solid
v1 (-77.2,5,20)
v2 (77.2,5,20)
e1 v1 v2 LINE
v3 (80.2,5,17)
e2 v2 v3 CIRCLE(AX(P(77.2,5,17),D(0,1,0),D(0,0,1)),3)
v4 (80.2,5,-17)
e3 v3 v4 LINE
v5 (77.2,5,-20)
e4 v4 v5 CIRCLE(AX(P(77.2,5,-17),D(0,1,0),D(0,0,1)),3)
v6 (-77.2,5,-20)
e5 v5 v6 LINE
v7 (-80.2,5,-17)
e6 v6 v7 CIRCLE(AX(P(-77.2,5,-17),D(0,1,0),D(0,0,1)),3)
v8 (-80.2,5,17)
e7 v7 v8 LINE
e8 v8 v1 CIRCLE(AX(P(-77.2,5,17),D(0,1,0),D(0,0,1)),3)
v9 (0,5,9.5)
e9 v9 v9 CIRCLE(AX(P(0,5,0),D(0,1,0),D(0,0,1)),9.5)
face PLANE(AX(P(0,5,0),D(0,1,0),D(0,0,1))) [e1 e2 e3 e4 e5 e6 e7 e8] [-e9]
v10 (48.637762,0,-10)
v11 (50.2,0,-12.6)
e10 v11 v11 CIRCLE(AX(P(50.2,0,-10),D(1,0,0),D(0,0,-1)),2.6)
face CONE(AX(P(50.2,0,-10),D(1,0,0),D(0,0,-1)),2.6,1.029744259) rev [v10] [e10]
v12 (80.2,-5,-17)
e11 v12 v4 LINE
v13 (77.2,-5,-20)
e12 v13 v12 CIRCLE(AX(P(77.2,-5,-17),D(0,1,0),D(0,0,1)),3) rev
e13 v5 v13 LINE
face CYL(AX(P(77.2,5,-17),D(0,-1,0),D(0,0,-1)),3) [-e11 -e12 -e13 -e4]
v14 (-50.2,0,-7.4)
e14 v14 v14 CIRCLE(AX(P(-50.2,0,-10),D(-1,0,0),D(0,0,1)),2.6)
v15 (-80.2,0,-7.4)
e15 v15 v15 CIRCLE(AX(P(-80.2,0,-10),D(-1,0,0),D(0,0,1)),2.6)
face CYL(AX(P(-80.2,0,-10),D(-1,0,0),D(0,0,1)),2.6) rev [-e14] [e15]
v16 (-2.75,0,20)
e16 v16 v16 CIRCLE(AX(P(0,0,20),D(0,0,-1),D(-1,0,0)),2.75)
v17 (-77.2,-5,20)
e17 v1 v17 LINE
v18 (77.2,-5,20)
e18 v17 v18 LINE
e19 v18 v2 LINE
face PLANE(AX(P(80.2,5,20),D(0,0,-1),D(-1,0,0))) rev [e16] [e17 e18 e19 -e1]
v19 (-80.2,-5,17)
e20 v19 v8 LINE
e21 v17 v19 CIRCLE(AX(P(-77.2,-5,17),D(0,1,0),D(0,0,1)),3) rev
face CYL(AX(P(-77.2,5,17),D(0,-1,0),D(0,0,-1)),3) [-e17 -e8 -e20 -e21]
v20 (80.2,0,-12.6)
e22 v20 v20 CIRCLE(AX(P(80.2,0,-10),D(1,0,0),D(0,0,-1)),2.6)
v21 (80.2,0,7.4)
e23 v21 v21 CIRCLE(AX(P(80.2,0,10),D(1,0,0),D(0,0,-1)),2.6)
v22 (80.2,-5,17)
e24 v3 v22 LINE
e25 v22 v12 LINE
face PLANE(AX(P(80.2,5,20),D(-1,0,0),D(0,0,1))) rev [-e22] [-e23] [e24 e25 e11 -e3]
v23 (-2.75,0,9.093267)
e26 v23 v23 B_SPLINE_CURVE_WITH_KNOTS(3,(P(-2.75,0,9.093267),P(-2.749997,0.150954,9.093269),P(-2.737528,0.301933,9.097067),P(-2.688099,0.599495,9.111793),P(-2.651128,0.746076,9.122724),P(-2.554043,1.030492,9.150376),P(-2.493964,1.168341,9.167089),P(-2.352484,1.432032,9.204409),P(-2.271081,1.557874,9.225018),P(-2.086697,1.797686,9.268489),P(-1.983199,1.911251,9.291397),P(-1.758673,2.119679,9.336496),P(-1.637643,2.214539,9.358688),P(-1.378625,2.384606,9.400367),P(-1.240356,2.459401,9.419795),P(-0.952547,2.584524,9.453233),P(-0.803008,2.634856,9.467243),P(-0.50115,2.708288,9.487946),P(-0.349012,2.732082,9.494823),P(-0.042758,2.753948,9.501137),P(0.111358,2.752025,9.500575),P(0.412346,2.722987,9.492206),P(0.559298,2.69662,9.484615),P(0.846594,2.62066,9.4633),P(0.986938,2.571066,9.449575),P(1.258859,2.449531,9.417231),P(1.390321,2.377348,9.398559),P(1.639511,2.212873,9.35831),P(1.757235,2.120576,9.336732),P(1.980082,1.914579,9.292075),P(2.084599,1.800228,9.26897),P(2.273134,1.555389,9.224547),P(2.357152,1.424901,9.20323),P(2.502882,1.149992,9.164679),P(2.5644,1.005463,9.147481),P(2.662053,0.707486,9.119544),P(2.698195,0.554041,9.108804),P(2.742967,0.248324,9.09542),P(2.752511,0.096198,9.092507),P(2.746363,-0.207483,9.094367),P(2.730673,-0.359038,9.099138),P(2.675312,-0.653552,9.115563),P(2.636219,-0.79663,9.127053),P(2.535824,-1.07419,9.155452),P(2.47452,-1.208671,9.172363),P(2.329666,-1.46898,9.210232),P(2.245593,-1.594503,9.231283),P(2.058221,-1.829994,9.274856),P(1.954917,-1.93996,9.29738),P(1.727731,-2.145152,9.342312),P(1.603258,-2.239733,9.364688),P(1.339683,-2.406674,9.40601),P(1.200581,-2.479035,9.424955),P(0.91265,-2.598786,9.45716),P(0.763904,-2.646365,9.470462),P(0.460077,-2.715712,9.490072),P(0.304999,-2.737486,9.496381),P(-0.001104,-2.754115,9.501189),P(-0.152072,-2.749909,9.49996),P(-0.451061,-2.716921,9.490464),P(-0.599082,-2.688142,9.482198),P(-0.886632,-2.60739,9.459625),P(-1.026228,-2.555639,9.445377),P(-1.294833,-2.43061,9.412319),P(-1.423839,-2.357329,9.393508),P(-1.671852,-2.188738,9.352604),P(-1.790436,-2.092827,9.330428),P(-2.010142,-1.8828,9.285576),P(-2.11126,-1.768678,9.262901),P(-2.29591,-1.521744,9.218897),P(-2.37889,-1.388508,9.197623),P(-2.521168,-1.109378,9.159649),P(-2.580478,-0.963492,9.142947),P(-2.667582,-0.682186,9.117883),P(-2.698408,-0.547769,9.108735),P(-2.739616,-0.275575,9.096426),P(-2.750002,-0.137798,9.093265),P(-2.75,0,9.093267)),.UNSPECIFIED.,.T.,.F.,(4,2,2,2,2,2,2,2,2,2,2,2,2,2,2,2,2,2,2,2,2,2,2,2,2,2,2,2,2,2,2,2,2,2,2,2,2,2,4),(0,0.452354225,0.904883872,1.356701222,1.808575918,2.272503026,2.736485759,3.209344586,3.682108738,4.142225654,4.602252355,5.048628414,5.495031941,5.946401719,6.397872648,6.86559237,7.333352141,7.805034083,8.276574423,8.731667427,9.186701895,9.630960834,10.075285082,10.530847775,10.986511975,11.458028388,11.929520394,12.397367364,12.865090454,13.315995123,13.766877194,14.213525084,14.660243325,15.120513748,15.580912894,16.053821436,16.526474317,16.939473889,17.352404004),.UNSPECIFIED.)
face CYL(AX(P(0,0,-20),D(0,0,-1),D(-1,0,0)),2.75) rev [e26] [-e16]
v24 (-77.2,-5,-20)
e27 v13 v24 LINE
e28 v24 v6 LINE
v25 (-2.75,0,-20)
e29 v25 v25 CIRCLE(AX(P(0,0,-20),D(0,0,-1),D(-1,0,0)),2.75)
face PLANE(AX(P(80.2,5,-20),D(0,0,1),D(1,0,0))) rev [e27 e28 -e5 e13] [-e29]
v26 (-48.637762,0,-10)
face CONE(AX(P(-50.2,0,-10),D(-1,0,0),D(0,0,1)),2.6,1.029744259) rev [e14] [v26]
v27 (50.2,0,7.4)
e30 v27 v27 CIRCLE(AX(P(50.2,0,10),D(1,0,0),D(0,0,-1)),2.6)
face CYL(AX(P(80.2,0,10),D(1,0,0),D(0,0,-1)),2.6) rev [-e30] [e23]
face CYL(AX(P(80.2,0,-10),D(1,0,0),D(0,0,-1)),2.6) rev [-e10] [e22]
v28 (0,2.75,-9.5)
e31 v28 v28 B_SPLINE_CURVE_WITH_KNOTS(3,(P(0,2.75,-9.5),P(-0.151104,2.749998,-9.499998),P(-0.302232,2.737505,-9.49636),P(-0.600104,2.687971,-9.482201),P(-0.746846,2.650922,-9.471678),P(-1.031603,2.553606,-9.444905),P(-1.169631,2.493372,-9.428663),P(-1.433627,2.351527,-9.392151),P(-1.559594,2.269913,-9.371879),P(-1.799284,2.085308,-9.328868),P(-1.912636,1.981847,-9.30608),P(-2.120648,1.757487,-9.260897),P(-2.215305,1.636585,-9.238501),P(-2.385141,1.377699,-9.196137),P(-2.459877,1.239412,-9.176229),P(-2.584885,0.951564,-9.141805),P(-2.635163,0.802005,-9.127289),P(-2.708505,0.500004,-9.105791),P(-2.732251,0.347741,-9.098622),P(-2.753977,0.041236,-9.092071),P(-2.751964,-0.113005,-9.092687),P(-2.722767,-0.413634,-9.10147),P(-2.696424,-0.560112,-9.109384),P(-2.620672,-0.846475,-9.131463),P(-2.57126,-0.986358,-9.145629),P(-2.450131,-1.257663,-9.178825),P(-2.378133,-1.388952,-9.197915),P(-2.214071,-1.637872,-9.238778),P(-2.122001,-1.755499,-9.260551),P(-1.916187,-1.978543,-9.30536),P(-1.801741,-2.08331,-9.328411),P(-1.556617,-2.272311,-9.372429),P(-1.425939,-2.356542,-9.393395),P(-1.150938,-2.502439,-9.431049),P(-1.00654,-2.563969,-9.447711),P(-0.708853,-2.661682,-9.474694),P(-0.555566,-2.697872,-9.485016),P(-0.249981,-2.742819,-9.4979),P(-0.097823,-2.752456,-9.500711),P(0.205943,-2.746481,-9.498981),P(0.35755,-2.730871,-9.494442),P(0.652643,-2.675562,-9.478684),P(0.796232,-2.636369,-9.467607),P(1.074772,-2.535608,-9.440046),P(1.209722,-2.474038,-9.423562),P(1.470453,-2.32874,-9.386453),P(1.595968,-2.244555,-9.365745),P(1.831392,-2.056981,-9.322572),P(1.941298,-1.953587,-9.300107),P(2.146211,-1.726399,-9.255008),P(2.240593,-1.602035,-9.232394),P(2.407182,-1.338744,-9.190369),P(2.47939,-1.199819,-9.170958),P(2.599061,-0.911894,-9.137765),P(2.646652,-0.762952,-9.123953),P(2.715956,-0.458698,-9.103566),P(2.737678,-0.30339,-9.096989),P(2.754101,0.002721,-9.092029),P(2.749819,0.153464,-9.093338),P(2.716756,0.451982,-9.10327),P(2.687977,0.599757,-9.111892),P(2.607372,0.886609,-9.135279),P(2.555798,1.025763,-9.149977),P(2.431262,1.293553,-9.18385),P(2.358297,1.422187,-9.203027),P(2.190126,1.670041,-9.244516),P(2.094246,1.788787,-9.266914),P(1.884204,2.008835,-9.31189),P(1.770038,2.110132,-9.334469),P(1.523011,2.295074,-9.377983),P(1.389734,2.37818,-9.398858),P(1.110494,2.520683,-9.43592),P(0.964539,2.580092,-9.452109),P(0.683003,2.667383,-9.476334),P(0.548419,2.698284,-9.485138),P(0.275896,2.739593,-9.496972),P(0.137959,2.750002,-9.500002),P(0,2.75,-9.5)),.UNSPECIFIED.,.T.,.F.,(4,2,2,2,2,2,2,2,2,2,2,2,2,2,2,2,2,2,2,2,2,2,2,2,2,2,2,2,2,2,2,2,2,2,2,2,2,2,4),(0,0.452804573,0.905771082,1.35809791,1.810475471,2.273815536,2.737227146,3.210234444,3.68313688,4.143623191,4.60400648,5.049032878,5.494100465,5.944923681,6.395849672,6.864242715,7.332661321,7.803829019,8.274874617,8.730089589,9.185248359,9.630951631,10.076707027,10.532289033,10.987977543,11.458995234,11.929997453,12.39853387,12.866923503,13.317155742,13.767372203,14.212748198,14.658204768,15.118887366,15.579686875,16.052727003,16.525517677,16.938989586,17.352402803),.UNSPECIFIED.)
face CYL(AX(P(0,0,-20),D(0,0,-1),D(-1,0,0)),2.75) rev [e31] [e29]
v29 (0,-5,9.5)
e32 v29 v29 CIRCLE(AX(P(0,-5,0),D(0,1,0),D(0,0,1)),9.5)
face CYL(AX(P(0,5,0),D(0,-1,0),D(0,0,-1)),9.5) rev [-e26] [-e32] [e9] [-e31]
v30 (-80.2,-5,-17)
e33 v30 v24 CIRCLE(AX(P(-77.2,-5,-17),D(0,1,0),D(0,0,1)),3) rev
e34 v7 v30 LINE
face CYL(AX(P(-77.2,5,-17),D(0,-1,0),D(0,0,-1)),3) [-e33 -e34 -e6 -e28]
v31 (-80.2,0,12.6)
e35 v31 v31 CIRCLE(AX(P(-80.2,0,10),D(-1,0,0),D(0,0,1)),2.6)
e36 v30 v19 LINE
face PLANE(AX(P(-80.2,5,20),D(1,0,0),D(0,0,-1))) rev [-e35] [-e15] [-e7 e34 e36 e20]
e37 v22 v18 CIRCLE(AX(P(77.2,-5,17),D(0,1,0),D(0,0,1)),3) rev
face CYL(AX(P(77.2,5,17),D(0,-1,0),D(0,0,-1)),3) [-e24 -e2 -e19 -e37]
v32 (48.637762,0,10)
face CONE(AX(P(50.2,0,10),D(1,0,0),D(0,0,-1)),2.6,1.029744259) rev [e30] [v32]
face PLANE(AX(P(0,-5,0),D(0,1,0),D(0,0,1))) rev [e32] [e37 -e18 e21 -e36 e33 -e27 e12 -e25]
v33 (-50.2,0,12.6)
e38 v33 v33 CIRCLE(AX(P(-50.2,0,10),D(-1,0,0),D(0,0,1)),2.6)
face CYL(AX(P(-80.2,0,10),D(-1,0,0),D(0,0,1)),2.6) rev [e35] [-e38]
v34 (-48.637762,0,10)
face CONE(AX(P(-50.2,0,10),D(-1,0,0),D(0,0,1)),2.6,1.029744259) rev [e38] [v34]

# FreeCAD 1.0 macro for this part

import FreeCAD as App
import Part
import Sketcher
from FreeCAD import Vector
Q = App.Units.Quantity


def edges_at(feature, points):
    """Names of the edges that pass closest to the given points."""
    edges = feature.Shape.Edges
    near = lambda p: min(range(len(edges)), key=lambda i: edges[i].distToShape(Part.Vertex(*p))[0])
    return sorted({f"Edge{near(p) + 1}" for p in points})

doc = App.newDocument("Part")
body = doc.addObject("PartDesign::Body", "Body")

# Sketch on XZ plane
sketch1 = doc.addObject("Sketcher::SketchObject", "Sketch")
body.addObject(sketch1)
sketch1.AttachmentSupport = (doc.XZ_Plane, [""])
sketch1.MapMode = "FlatFace"
sketch1.addGeometry(Part.LineSegment(Vector(-80, -20, 0), Vector(-80, 20, 0)), False)
sketch1.addGeometry(Part.LineSegment(Vector(-80, 20, 0), Vector(80, 20, 0)), False)
sketch1.addGeometry(Part.LineSegment(Vector(80, 20, 0), Vector(80, -20, 0)), False)
sketch1.addGeometry(Part.LineSegment(Vector(80, -20, 0), Vector(-80, -20, 0)), False)
sketch1.addGeometry(Part.Circle(Vector(0, 0, 0), Vector(0, 0, 1), 10), False)
sketch1.addConstraint(Sketcher.Constraint("Coincident", 0, 2, 1, 1))
sketch1.addConstraint(Sketcher.Constraint("Coincident", 1, 2, 2, 1))
sketch1.addConstraint(Sketcher.Constraint("Coincident", 2, 2, 3, 1))
sketch1.addConstraint(Sketcher.Constraint("Coincident", 3, 2, 0, 1))
sketch1.addConstraint(Sketcher.Constraint("Vertical", 0))
sketch1.addConstraint(Sketcher.Constraint("Horizontal", 1))
sketch1.addConstraint(Sketcher.Constraint("Vertical", 2))
sketch1.addConstraint(Sketcher.Constraint("Horizontal", 3))
sketch1.addConstraint(Sketcher.Constraint("Coincident", 4, 3, -1, 1))
sketch1.addConstraint(Sketcher.Constraint("Symmetric", 0, 2, 2, 2, -1, 1))
sketch1.addConstraint(Sketcher.Constraint("Diameter", 4, 19.0))
sketch1.addConstraint(Sketcher.Constraint("DistanceY", 0, 1, 0, 2, 40.0))
sketch1.addConstraint(Sketcher.Constraint("DistanceX", 1, 1, 1, 2, 160.4))
pad1 = doc.addObject("PartDesign::Pad", "Pad")
body.addObject(pad1)
pad1.Profile = sketch1
pad1.Length = 10
pad1.Midplane = True

# Sketch on XZ plane
sketch2 = doc.addObject("Sketcher::SketchObject", "Sketch001")
body.addObject(sketch2)
sketch2.AttachmentSupport = (doc.XZ_Plane, [""])
sketch2.MapMode = "FlatFace"
sketch2.addGeometry(Part.LineSegment(Vector(-48.6, -10, 0), Vector(-80.2, -10, 0)), False)
sketch2.addGeometry(Part.LineSegment(Vector(-80.2, -10, 0), Vector(-80.2, -7.4, 0)), False)
sketch2.addGeometry(Part.LineSegment(Vector(-80.2, -7.4, 0), Vector(-50.2, -7.4, 0)), False)
sketch2.addGeometry(Part.LineSegment(Vector(-50.2, -7.4, 0), Vector(-48.6, -10, 0)), False)
sketch2.addGeometry(Part.LineSegment(Vector(-80.2, -10, 0), Vector(-48.6, -10, 0)), True)  # axis
sketch2.addConstraint(Sketcher.Constraint("Coincident", 0, 2, 1, 1))
sketch2.addConstraint(Sketcher.Constraint("Coincident", 1, 2, 2, 1))
sketch2.addConstraint(Sketcher.Constraint("Coincident", 2, 2, 3, 1))
sketch2.addConstraint(Sketcher.Constraint("Coincident", 3, 2, 0, 1))
sketch2.addConstraint(Sketcher.Constraint("Horizontal", 0))
sketch2.addConstraint(Sketcher.Constraint("Vertical", 1))
sketch2.addConstraint(Sketcher.Constraint("Horizontal", 2))
sketch2.addConstraint(Sketcher.Constraint("Horizontal", 4))
sketch2.addConstraint(Sketcher.Constraint("Coincident", 4, 1, 0, 2))
sketch2.addConstraint(Sketcher.Constraint("Equal", 0, 4))
sketch2.addConstraint(Sketcher.Constraint("DistanceX", 2, 1, 2, 2, 30.0))
sketch2.addConstraint(Sketcher.Constraint("Angle", 3, Q("-59 deg")))
sketch2.addConstraint(Sketcher.Constraint("DistanceY", 1, 1, 1, 2, 2.6))
sketch2.addConstraint(Sketcher.Constraint("DistanceY", 0, 2, -1, 1, 10.0))
sketch2.addConstraint(Sketcher.Constraint("DistanceX", 0, 2, -1, 1, 80.2))
groove = doc.addObject("PartDesign::Groove", "Groove")
body.addObject(groove)
groove.Profile = sketch2
groove.ReferenceAxis = (sketch2, ["Axis0"])
groove.Angle = 360
doc.recompute()

linearpattern = doc.addObject("PartDesign::LinearPattern", "LinearPattern")
body.addObject(linearpattern)
linearpattern.Originals = [groove]
linearpattern.Direction = (doc.Z_Axis, [""])
linearpattern.Mode = "offset"
linearpattern.Offset = 20
linearpattern.Occurrences = 2
body.Tip = linearpattern
doc.recompute()

mirrored = doc.addObject("PartDesign::Mirrored", "Mirrored")
body.addObject(mirrored)
mirrored.Originals = [groove]
mirrored.MirrorPlane = (doc.YZ_Plane, [""])
body.Tip = mirrored

# Sketch on XZ plane
sketch3 = doc.addObject("Sketcher::SketchObject", "Sketch002")
body.addObject(sketch3)
sketch3.AttachmentSupport = (doc.XZ_Plane, [""])
sketch3.MapMode = "FlatFace"
sketch3.addGeometry(Part.LineSegment(Vector(80.2, 10, 0), Vector(48.6, 10, 0)), False)
sketch3.addGeometry(Part.LineSegment(Vector(48.6, 10, 0), Vector(50.2, 12.6, 0)), False)
sketch3.addGeometry(Part.LineSegment(Vector(50.2, 12.6, 0), Vector(80.2, 12.6, 0)), False)
sketch3.addGeometry(Part.LineSegment(Vector(80.2, 12.6, 0), Vector(80.2, 10, 0)), False)
sketch3.addGeometry(Part.LineSegment(Vector(48.6, 10, 0), Vector(80.2, 10, 0)), True)  # axis
sketch3.addConstraint(Sketcher.Constraint("Coincident", 0, 2, 1, 1))
sketch3.addConstraint(Sketcher.Constraint("Coincident", 1, 2, 2, 1))
sketch3.addConstraint(Sketcher.Constraint("Coincident", 2, 2, 3, 1))
sketch3.addConstraint(Sketcher.Constraint("Coincident", 3, 2, 0, 1))
sketch3.addConstraint(Sketcher.Constraint("Horizontal", 0))
sketch3.addConstraint(Sketcher.Constraint("Horizontal", 2))
sketch3.addConstraint(Sketcher.Constraint("Vertical", 3))
sketch3.addConstraint(Sketcher.Constraint("Horizontal", 4))
sketch3.addConstraint(Sketcher.Constraint("Coincident", 4, 1, 0, 2))
sketch3.addConstraint(Sketcher.Constraint("Vertical", 2, 2, 4, 2))
sketch3.addConstraint(Sketcher.Constraint("DistanceX", 2, 1, 2, 2, 30.0))
sketch3.addConstraint(Sketcher.Constraint("Angle", 1, Q("59 deg")))
sketch3.addConstraint(Sketcher.Constraint("DistanceY", 3, 2, 3, 1, 2.6))
sketch3.addConstraint(Sketcher.Constraint("DistanceY", -1, 1, 0, 2, 10.0))
sketch3.addConstraint(Sketcher.Constraint("DistanceX", -1, 1, 1, 2, 50.2))
groove2 = doc.addObject("PartDesign::Groove", "Groove001")
body.addObject(groove2)
groove2.Profile = sketch3
groove2.ReferenceAxis = (sketch3, ["Axis0"])
groove2.Angle = 360
doc.recompute()

fillet = doc.addObject("PartDesign::Fillet", "Fillet")
body.addObject(fillet)
fillet.Base = (groove2, edges_at(groove2, [
    (-80.2, 0, -20),
    (80.2, 0, -20),
    (80.2, 0, 20),
    (-80.2, 0, 20),
]))
fillet.Radius = 3

# Sketch on XY plane
sketch4 = doc.addObject("Sketcher::SketchObject", "Sketch003")
body.addObject(sketch4)
sketch4.AttachmentSupport = (doc.XY_Plane, [""])
sketch4.MapMode = "FlatFace"
sketch4.AttachmentOffset = App.Placement(Vector(0, 0, -20), App.Rotation())
sketch4.addGeometry(Part.Circle(Vector(0, 0, 0), Vector(0, 0, 1), 2.8), False)
sketch4.addConstraint(Sketcher.Constraint("Coincident", 0, 3, -1, 1))
sketch4.addConstraint(Sketcher.Constraint("Diameter", 0, 5.5))
doc.recompute()
hole = doc.addObject("PartDesign::Hole", "Hole")
body.addObject(hole)
hole.Profile = sketch4
hole.ThreadType = "None"
hole.Diameter = 5.5
hole.DepthType = "ThroughAll"
hole.Reversed = True

doc.recompute()
